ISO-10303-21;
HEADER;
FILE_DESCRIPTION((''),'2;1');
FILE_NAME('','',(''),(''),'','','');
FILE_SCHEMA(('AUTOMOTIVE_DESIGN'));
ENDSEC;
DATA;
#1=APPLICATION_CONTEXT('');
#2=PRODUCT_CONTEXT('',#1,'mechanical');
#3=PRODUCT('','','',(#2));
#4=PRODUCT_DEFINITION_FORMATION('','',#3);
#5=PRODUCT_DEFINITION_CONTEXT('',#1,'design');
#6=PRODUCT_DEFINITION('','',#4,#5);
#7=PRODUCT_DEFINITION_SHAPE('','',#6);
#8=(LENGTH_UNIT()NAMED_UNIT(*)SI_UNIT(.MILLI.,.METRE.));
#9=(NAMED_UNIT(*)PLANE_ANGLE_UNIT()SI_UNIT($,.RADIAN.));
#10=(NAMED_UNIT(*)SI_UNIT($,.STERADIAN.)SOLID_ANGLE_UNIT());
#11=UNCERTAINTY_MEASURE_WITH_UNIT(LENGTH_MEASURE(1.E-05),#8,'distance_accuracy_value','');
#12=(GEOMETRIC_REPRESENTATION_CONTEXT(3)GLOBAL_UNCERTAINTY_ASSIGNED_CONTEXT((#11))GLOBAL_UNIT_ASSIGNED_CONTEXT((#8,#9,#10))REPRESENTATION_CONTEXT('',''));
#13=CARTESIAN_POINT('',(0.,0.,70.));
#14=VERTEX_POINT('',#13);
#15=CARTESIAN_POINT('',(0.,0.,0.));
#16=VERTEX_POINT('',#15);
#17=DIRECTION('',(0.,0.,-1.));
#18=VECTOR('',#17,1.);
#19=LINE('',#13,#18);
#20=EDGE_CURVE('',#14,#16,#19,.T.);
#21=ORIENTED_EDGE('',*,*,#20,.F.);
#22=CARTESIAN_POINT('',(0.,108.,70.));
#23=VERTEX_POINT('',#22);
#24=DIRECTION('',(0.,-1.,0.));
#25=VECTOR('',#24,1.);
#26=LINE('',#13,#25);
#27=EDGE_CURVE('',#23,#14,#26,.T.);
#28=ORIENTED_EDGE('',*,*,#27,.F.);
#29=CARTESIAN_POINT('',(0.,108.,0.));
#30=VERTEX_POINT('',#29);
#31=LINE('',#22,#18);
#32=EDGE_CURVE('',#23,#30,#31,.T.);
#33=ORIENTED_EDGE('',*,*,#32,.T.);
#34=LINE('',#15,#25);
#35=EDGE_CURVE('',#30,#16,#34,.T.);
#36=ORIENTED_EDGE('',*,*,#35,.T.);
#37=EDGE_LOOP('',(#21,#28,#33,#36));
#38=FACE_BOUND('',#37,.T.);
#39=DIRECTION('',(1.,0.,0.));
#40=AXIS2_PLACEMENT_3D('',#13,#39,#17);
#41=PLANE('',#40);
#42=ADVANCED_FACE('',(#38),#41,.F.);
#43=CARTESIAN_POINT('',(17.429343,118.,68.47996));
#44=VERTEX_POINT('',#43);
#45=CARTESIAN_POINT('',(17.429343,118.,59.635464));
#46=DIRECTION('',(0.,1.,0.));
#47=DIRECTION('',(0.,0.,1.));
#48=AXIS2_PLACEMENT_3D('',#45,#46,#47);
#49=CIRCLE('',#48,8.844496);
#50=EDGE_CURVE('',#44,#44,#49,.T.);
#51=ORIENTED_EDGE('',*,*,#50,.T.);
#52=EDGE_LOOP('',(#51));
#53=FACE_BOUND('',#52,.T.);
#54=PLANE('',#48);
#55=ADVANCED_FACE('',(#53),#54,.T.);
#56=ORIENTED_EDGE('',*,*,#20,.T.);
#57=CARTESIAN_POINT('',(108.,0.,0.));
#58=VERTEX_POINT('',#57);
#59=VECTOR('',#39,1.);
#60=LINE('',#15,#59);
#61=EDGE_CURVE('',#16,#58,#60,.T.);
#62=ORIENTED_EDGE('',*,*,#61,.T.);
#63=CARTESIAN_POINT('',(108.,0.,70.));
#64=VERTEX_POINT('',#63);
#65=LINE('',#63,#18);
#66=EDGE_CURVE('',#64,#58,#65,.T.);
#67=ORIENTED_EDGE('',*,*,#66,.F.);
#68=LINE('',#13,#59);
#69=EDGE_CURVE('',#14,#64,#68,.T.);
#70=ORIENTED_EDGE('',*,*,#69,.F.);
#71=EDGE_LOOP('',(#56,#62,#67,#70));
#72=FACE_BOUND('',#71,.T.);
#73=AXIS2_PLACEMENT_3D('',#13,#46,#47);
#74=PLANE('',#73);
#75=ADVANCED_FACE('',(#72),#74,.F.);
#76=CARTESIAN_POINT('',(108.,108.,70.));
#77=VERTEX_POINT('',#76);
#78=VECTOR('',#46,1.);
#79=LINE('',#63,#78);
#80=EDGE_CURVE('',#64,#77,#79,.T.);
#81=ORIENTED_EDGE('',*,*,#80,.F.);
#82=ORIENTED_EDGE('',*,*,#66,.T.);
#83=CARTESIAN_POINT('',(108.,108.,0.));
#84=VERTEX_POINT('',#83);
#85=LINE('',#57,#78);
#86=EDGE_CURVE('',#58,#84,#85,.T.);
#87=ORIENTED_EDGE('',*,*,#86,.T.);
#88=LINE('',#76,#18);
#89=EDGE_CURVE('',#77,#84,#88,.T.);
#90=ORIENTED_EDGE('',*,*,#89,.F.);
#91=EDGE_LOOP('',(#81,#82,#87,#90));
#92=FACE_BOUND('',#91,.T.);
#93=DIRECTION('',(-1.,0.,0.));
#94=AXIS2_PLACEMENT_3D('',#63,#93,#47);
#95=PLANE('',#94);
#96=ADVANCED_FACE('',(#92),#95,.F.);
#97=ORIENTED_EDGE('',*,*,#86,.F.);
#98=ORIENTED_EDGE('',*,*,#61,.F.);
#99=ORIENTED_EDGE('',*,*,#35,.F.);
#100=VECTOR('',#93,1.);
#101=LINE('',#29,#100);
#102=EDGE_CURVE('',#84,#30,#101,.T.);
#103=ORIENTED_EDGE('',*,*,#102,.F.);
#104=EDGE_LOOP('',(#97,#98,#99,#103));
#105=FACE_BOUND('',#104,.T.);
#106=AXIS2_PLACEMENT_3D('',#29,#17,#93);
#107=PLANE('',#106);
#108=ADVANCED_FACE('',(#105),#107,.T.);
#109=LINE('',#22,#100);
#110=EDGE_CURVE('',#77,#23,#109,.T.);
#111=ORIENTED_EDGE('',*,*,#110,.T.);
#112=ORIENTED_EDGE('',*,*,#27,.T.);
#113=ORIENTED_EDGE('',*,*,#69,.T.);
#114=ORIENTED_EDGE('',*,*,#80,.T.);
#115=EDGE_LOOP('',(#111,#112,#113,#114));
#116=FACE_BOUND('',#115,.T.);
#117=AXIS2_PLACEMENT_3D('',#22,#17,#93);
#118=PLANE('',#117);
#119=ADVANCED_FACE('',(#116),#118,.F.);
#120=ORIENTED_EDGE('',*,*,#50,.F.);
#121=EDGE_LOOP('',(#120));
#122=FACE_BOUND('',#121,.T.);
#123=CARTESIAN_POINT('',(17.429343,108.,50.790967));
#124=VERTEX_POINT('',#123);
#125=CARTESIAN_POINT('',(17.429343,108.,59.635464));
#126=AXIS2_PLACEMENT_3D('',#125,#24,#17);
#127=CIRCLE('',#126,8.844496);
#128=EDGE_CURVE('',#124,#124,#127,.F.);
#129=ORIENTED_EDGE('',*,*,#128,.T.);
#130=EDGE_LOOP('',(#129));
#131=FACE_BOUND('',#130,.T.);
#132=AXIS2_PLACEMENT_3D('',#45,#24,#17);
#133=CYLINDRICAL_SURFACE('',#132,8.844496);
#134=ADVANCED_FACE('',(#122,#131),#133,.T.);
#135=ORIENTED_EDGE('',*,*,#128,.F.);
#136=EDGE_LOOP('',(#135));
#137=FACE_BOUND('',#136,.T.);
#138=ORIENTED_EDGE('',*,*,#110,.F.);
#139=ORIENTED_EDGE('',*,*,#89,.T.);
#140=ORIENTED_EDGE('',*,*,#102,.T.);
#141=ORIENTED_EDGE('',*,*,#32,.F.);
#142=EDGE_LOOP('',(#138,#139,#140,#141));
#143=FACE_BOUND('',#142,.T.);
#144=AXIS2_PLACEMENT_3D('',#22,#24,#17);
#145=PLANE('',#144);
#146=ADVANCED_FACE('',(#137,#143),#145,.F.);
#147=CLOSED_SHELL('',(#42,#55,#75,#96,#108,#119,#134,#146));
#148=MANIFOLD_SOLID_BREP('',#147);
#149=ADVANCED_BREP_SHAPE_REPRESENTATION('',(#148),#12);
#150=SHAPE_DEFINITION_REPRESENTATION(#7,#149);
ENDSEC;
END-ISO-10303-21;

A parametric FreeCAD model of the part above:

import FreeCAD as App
import Part
import Sketcher

doc = App.newDocument("Part")
body = doc.addObject("PartDesign::Body", "Body")

# Sketch on XY plane
sketch1 = doc.addObject("Sketcher::SketchObject", "Sketch")
body.addObject(sketch1)
sketch1.AttachmentSupport = (doc.XY_Plane, [""])
sketch1.MapMode = "FlatFace"
sketch1.addGeometry([
    Part.LineSegment(App.Vector(0, 108, 0), App.Vector(0, 0, 0)),
    Part.LineSegment(App.Vector(0, 0, 0), App.Vector(108, 0, 0)),
    Part.LineSegment(App.Vector(108, 0, 0), App.Vector(108, 108, 0)),
    Part.LineSegment(App.Vector(108, 108, 0), App.Vector(0, 108, 0)),
], False)
sketch1.addConstraint([
    Sketcher.Constraint("Coincident", 0, 2, 1, 1),
    Sketcher.Constraint("Coincident", 1, 2, 2, 1),
    Sketcher.Constraint("Coincident", 2, 2, 3, 1),
    Sketcher.Constraint("Coincident", 3, 2, 0, 1),
    Sketcher.Constraint("Vertical", 0),
    Sketcher.Constraint("Horizontal", 1),
    Sketcher.Constraint("Vertical", 2),
    Sketcher.Constraint("Horizontal", 3),
    Sketcher.Constraint("Coincident", 0, 2, -1, 1),
    Sketcher.Constraint("Equal", 3, 0),
    Sketcher.Constraint("DistanceX", 1, 1, 1, 2, 108.0),
])
pad1 = doc.addObject("PartDesign::Pad", "Pad")
body.addObject(pad1)
pad1.Profile = sketch1
pad1.Length = 70

# Sketch on XZ plane
sketch2 = doc.addObject("Sketcher::SketchObject", "Sketch001")
body.addObject(sketch2)
sketch2.AttachmentSupport = (doc.XZ_Plane, [""])
sketch2.MapMode = "FlatFace"
sketch2.AttachmentOffset = App.Placement(App.Vector(0, 0, -108), App.Rotation())
sketch2.addGeometry(Part.Circle(App.Vector(17, 60, 0), App.Vector(0, 0, 1), 9), False)
sketch2.addConstraint([
    Sketcher.Constraint("Diameter", 0, 17.688992),
    Sketcher.Constraint("DistanceX", -1, 1, 0, 3, 17.429343),
    Sketcher.Constraint("DistanceY", -1, 1, 0, 3, 59.635464),
])
pad2 = doc.addObject("PartDesign::Pad", "Pad001")
body.addObject(pad2)
pad2.Profile = sketch2
pad2.Length = 10
pad2.Reversed = True

doc.recompute()
